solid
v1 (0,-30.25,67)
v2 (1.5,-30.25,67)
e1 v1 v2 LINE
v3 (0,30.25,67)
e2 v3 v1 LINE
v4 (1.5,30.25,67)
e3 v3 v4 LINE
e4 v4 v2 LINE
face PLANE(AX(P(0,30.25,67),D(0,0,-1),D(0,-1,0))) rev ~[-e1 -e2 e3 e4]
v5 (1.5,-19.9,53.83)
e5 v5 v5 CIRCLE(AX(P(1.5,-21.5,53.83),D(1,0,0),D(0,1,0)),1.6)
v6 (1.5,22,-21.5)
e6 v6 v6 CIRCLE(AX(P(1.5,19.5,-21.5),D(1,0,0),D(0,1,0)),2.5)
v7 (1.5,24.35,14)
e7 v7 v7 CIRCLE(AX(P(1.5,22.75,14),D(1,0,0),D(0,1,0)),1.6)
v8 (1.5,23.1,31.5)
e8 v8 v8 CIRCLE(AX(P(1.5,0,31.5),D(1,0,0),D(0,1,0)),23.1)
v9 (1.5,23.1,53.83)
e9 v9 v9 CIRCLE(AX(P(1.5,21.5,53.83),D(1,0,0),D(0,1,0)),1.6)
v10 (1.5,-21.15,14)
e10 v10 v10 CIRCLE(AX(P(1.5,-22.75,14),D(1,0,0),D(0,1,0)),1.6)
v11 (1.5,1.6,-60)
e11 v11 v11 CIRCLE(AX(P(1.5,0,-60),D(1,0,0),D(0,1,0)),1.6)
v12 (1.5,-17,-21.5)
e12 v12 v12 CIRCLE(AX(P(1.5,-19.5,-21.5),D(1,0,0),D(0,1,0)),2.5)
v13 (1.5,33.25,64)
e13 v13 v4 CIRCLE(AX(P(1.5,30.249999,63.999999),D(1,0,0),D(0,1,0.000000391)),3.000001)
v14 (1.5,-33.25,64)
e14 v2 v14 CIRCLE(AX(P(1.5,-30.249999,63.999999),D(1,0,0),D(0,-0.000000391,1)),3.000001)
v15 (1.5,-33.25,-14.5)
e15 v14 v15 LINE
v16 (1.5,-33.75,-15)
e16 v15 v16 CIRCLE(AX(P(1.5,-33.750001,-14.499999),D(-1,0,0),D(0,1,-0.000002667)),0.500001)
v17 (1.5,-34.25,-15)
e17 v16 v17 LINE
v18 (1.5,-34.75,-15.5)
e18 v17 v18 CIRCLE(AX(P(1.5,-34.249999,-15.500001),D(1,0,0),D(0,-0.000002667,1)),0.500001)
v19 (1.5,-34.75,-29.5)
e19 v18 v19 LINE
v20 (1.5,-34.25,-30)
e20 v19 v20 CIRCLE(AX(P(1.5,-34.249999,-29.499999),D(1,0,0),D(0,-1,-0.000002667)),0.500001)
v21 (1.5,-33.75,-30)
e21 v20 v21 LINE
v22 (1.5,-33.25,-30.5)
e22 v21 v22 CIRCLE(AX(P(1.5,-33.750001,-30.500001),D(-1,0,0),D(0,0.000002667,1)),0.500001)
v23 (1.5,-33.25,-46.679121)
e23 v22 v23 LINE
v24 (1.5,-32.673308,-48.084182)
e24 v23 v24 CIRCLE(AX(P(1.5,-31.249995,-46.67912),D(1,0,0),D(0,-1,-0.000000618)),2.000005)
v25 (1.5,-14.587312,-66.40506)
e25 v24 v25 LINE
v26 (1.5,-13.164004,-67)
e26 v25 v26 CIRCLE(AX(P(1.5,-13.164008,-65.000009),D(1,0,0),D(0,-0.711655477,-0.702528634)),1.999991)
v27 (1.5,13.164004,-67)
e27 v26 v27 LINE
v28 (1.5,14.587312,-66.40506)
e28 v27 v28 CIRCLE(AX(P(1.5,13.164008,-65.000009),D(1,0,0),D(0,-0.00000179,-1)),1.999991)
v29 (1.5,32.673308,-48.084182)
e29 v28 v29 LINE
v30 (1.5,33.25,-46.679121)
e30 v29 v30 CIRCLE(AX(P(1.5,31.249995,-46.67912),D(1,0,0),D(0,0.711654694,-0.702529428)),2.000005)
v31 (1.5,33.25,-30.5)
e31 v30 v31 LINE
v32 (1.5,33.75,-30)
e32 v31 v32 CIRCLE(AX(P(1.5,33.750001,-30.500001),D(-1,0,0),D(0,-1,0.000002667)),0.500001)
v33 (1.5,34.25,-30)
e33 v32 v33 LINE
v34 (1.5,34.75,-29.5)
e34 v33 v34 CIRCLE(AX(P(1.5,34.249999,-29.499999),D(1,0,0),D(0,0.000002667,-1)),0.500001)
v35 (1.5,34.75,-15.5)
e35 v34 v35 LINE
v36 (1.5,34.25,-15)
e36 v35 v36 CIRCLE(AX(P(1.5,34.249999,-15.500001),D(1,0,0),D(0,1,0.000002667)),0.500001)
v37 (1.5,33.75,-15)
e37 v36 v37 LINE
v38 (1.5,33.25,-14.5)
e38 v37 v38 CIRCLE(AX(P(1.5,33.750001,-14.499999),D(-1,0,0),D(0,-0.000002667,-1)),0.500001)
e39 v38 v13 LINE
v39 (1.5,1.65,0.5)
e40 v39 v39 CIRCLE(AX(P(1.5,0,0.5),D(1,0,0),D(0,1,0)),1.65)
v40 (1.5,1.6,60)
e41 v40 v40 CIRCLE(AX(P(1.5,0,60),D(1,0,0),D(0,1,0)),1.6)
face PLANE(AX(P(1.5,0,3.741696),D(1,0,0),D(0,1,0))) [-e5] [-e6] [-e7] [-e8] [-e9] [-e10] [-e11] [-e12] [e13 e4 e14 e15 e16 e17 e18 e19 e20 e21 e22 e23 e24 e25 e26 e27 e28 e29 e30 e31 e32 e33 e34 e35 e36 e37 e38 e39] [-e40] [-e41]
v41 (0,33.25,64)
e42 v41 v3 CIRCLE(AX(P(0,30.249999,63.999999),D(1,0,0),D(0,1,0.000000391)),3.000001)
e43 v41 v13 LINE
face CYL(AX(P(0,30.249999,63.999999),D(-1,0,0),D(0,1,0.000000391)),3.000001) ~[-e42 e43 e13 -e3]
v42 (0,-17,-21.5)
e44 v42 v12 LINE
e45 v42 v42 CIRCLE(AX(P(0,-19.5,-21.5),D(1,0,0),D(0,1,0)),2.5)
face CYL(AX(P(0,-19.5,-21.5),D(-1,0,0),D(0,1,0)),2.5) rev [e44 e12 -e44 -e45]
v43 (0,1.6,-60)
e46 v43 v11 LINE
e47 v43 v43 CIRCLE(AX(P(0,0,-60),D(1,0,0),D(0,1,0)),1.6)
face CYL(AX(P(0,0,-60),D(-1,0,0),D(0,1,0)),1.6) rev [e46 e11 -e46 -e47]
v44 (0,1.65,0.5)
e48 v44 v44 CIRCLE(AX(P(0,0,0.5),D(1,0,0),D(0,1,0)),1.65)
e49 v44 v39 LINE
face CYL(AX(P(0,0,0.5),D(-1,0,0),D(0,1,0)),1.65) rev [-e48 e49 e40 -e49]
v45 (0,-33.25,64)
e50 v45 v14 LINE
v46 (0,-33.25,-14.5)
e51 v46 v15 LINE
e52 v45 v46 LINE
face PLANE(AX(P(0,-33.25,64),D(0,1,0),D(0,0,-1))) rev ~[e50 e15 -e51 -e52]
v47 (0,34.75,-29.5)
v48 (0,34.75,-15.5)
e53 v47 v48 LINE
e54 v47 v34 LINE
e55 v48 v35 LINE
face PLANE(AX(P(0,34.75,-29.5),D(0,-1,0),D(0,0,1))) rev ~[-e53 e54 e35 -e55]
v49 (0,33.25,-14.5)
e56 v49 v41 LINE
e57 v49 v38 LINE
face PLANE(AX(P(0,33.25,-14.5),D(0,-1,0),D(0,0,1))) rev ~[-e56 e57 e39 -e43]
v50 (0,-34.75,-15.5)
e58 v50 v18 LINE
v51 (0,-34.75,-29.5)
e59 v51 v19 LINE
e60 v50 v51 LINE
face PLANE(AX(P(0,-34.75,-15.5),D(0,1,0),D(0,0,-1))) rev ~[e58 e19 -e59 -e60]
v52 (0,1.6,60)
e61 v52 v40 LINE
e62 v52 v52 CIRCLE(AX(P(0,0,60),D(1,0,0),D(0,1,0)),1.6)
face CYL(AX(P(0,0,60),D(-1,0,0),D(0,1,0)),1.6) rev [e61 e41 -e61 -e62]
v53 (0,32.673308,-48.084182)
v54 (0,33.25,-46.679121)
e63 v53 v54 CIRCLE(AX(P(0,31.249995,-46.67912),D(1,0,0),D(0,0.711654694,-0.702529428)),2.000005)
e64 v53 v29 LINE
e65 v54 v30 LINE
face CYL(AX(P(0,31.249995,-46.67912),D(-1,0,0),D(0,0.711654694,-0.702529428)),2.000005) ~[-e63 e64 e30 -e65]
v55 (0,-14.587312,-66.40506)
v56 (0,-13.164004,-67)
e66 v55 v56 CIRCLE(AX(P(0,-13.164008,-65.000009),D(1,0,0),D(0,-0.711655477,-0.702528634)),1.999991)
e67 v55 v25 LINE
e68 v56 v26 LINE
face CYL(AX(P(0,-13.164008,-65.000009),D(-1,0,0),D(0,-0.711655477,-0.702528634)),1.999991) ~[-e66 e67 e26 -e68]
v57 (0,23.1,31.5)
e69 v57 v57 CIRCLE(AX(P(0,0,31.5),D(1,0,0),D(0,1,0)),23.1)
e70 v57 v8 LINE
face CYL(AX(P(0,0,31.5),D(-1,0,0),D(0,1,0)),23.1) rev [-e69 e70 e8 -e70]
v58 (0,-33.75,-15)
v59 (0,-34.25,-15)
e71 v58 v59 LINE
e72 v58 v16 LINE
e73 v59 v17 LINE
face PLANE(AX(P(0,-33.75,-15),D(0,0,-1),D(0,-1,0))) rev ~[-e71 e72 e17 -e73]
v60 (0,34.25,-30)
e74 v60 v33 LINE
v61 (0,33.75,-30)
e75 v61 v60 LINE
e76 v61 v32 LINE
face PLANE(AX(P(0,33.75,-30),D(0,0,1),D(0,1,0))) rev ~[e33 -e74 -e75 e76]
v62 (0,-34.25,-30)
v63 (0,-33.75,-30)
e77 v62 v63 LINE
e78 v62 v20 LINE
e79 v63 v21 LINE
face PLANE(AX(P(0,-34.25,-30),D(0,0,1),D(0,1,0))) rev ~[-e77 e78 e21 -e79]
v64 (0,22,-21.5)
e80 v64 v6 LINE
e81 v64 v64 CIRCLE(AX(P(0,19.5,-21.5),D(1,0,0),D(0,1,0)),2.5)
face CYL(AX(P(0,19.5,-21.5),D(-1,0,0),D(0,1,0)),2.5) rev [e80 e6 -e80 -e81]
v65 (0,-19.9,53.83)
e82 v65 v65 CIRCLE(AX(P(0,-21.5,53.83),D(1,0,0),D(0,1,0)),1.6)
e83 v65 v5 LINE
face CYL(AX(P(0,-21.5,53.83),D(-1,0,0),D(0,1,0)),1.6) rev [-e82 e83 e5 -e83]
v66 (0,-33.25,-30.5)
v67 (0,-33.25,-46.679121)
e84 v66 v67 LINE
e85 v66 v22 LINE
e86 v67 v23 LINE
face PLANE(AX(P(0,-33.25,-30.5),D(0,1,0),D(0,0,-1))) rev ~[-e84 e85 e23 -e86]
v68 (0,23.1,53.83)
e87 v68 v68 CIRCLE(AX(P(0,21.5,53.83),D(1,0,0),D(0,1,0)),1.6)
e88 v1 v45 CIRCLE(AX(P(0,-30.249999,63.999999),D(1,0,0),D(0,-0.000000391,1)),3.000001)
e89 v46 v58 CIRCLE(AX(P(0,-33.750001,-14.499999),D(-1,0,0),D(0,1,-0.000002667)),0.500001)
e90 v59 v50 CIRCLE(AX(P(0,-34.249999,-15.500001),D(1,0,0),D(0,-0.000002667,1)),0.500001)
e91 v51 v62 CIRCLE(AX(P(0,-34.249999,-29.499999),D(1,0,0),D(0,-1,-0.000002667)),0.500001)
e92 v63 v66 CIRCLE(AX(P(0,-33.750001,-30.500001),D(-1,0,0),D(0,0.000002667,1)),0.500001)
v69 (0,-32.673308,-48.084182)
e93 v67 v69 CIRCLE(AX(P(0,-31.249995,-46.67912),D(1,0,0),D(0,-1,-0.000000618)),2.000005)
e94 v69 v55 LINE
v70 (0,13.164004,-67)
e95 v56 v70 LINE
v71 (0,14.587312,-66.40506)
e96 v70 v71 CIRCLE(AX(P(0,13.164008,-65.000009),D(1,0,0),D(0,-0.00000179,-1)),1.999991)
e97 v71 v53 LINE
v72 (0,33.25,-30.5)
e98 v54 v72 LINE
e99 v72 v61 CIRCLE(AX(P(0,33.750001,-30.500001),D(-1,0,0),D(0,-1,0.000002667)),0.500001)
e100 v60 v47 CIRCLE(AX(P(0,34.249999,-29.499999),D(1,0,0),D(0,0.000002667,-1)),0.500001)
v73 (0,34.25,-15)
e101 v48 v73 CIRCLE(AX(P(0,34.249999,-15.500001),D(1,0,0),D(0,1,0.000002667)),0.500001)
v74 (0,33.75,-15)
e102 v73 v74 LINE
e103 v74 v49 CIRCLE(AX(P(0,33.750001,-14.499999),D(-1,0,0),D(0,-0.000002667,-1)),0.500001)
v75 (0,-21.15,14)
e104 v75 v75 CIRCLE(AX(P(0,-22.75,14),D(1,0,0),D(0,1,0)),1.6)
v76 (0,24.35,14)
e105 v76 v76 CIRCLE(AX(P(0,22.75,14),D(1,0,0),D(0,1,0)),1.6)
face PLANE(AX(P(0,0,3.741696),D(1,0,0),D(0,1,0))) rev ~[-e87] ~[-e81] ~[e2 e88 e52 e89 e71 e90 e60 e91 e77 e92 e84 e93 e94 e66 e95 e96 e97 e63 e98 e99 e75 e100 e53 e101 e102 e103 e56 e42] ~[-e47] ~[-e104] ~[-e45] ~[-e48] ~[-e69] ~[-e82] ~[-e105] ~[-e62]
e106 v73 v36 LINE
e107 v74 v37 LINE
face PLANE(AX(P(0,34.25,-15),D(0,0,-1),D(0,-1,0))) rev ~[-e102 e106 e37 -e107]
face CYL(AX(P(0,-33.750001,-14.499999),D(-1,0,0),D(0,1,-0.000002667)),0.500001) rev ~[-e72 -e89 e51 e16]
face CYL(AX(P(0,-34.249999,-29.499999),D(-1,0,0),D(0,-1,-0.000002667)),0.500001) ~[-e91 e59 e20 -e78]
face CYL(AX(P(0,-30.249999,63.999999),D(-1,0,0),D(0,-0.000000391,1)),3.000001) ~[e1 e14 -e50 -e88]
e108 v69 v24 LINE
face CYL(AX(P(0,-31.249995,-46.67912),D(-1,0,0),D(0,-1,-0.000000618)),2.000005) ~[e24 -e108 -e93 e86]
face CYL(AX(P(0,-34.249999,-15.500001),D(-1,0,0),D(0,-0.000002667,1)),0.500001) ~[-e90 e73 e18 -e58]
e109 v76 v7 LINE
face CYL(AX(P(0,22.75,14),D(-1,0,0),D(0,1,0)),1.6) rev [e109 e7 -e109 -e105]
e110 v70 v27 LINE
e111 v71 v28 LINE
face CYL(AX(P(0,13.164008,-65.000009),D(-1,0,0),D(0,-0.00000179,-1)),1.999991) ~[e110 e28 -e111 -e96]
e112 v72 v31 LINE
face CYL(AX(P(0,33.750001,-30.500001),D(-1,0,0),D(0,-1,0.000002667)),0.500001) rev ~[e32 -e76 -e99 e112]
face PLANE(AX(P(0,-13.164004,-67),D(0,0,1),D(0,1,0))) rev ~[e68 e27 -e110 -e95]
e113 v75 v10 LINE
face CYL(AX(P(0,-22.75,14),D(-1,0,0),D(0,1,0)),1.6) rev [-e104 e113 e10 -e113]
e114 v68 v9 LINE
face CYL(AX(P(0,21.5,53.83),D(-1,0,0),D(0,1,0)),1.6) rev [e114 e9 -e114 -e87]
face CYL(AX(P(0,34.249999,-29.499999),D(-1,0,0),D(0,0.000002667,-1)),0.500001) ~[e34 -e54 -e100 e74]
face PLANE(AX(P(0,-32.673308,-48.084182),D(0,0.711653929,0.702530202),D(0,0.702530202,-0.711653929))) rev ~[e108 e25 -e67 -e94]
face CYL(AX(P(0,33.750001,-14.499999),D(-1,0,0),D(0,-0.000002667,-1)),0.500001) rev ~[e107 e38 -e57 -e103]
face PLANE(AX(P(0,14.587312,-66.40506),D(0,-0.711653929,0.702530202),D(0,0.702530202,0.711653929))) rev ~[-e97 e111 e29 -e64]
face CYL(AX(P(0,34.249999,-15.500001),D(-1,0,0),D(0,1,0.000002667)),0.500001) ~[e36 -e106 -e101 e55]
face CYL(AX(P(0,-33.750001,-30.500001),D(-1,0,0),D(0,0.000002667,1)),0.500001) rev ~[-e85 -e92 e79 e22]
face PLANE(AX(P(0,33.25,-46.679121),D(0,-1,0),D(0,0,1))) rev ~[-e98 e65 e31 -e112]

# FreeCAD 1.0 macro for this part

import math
import FreeCAD as App
import Part
import Sketcher
Q = App.Units.Quantity

doc = App.newDocument("Part")
body = doc.addObject("PartDesign::Body", "Body")

# Sketch on YZ plane
sketch1 = doc.addObject("Sketcher::SketchObject", "Sketch")
body.addObject(sketch1)
sketch1.AttachmentSupport = (doc.YZ_Plane, [""])
sketch1.MapMode = "FlatFace"
sketch1.addGeometry([
    Part.ArcOfCircle(Part.Circle(App.Vector(30.2, 64, 0), App.Vector(0, 0, 1), 3), math.radians(0), math.radians(90)),  # 0
    Part.LineSegment(App.Vector(30.2, 67, 0), App.Vector(-30.2, 67, 0)),  # 1
    Part.ArcOfCircle(Part.Circle(App.Vector(-30.2, 64, 0), App.Vector(0, 0, 1), 3), math.radians(90), math.radians(180)),  # 2
    Part.LineSegment(App.Vector(-33.2, 64, 0), App.Vector(-33.2, -14.5, 0)),  # 3
    Part.ArcOfCircle(Part.Circle(App.Vector(-33.8, -14.5, 0), App.Vector(0, 0, 1), 0.5), math.radians(-90), math.radians(0)),  # 4
    Part.LineSegment(App.Vector(-33.8, -15, 0), App.Vector(-34.2, -15, 0)),  # 5
    Part.ArcOfCircle(Part.Circle(App.Vector(-34.2, -15.5, 0), App.Vector(0, 0, 1), 0.5), math.radians(90), math.radians(180)),  # 6
    Part.LineSegment(App.Vector(-34.8, -15.5, 0), App.Vector(-34.8, -29.5, 0)),  # 7
    Part.ArcOfCircle(Part.Circle(App.Vector(-34.2, -29.5, 0), App.Vector(0, 0, 1), 0.5), math.radians(-180), math.radians(-90)),  # 8
    Part.LineSegment(App.Vector(-34.2, -30, 0), App.Vector(-33.8, -30, 0)),  # 9
    Part.ArcOfCircle(Part.Circle(App.Vector(-33.8, -30.5, 0), App.Vector(0, 0, 1), 0.5), math.radians(0), math.radians(90)),  # 10
    Part.LineSegment(App.Vector(-33.2, -30.5, 0), App.Vector(-33.2, -46.7, 0)),  # 11
    Part.ArcOfCircle(Part.Circle(App.Vector(-31.2, -46.7, 0), App.Vector(0, 0, 1), 2), math.radians(-180), math.radians(-135)),  # 12
    Part.LineSegment(App.Vector(-32.7, -48.1, 0), App.Vector(-14.6, -66.4, 0)),  # 13
    Part.ArcOfCircle(Part.Circle(App.Vector(-13.2, -65, 0), App.Vector(0, 0, 1), 2), math.radians(-135), math.radians(-90)),  # 14
    Part.LineSegment(App.Vector(-13.2, -67, 0), App.Vector(13.2, -67, 0)),  # 15
    Part.ArcOfCircle(Part.Circle(App.Vector(13.2, -65, 0), App.Vector(0, 0, 1), 2), math.radians(-90), math.radians(-45)),  # 16
    Part.LineSegment(App.Vector(14.6, -66.4, 0), App.Vector(32.7, -48.1, 0)),  # 17
    Part.ArcOfCircle(Part.Circle(App.Vector(31.2, -46.7, 0), App.Vector(0, 0, 1), 2), math.radians(-45), math.radians(0)),  # 18
    Part.LineSegment(App.Vector(33.2, -46.7, 0), App.Vector(33.2, -30.5, 0)),  # 19
    Part.ArcOfCircle(Part.Circle(App.Vector(33.8, -30.5, 0), App.Vector(0, 0, 1), 0.5), math.radians(90), math.radians(180)),  # 20
    Part.LineSegment(App.Vector(33.8, -30, 0), App.Vector(34.2, -30, 0)),  # 21
    Part.ArcOfCircle(Part.Circle(App.Vector(34.2, -29.5, 0), App.Vector(0, 0, 1), 0.5), math.radians(-90), math.radians(0)),  # 22
    Part.LineSegment(App.Vector(34.8, -29.5, 0), App.Vector(34.8, -15.5, 0)),  # 23
    Part.ArcOfCircle(Part.Circle(App.Vector(34.2, -15.5, 0), App.Vector(0, 0, 1), 0.5), math.radians(0), math.radians(90)),  # 24
    Part.LineSegment(App.Vector(34.2, -15, 0), App.Vector(33.8, -15, 0)),  # 25
    Part.ArcOfCircle(Part.Circle(App.Vector(33.8, -14.5, 0), App.Vector(0, 0, 1), 0.5), math.radians(-180), math.radians(-90)),  # 26
    Part.LineSegment(App.Vector(33.2, -14.5, 0), App.Vector(33.2, 64, 0)),  # 27
    Part.Circle(App.Vector(-19.5, -21.5, 0), App.Vector(0, 0, 1), 2.5),  # 28
    Part.Circle(App.Vector(0, -60, 0), App.Vector(0, 0, 1), 1.6),  # 29
    Part.Circle(App.Vector(19.5, -21.5, 0), App.Vector(0, 0, 1), 2.5),  # 30
    Part.Circle(App.Vector(-22.8, 14, 0), App.Vector(0, 0, 1), 1.6),  # 31
    Part.Circle(App.Vector(-21.5, 53.8, 0), App.Vector(0, 0, 1), 1.6),  # 32
    Part.Circle(App.Vector(0, 0.5, 0), App.Vector(0, 0, 1), 1.6),  # 33
    Part.Circle(App.Vector(22.8, 14, 0), App.Vector(0, 0, 1), 1.6),  # 34
    Part.Circle(App.Vector(0, 31.5, 0), App.Vector(0, 0, 1), 23.1),  # 35
    Part.Circle(App.Vector(0, 60, 0), App.Vector(0, 0, 1), 1.6),  # 36
    Part.Circle(App.Vector(21.5, 53.8, 0), App.Vector(0, 0, 1), 1.6),  # 37
], False)
sketch1.addConstraint([
    Sketcher.Constraint("Tangent", 0, 2, 1, 1),
    Sketcher.Constraint("Tangent", 1, 2, 2, 1),
    Sketcher.Constraint("Tangent", 2, 2, 3, 1),
    Sketcher.Constraint("Coincident", 3, 2, 4, 2),
    Sketcher.Constraint("Coincident", 4, 1, 5, 1),
    Sketcher.Constraint("Coincident", 5, 2, 6, 1),
    Sketcher.Constraint("Coincident", 6, 2, 7, 1),
    Sketcher.Constraint("Coincident", 7, 2, 8, 1),
    Sketcher.Constraint("Coincident", 8, 2, 9, 1),
    Sketcher.Constraint("Coincident", 9, 2, 10, 2),
    Sketcher.Constraint("Coincident", 10, 1, 11, 1),
    Sketcher.Constraint("Tangent", 11, 2, 12, 1),
    Sketcher.Constraint("Tangent", 12, 2, 13, 1),
    Sketcher.Constraint("Coincident", 13, 2, 14, 1),
    Sketcher.Constraint("Tangent", 14, 2, 15, 1),
    Sketcher.Constraint("Tangent", 15, 2, 16, 1),
    Sketcher.Constraint("Coincident", 16, 2, 17, 1),
    Sketcher.Constraint("Tangent", 17, 2, 18, 1),
    Sketcher.Constraint("Tangent", 18, 2, 19, 1),
    Sketcher.Constraint("Coincident", 19, 2, 20, 2),
    Sketcher.Constraint("Coincident", 20, 1, 21, 1),
    Sketcher.Constraint("Coincident", 21, 2, 22, 1),
    Sketcher.Constraint("Coincident", 22, 2, 23, 1),
    Sketcher.Constraint("Coincident", 23, 2, 24, 1),
    Sketcher.Constraint("Coincident", 24, 2, 25, 1),
    Sketcher.Constraint("Coincident", 25, 2, 26, 2),
    Sketcher.Constraint("Coincident", 26, 1, 27, 1),
    Sketcher.Constraint("Tangent", 27, 2, 0, 1),
    Sketcher.Constraint("Horizontal", 1),
    Sketcher.Constraint("Vertical", 3),
    Sketcher.Constraint("Horizontal", 5),
    Sketcher.Constraint("Vertical", 7),
    Sketcher.Constraint("Horizontal", 9),
    Sketcher.Constraint("Vertical", 11),
    Sketcher.Constraint("Horizontal", 15),
    Sketcher.Constraint("Vertical", 19),
    Sketcher.Constraint("Horizontal", 21),
    Sketcher.Constraint("Vertical", 23),
    Sketcher.Constraint("Horizontal", 25),
    Sketcher.Constraint("Vertical", 27),
    Sketcher.Constraint("Equal", 0, 2),
    Sketcher.Constraint("Equal", 4, 6),
    Sketcher.Constraint("Equal", 6, 8),
    Sketcher.Constraint("Equal", 8, 10),
    Sketcher.Constraint("Equal", 14, 16),
    Sketcher.Constraint("Equal", 12, 18),
    Sketcher.Constraint("Equal", 10, 20),
    Sketcher.Constraint("Equal", 20, 22),
    Sketcher.Constraint("Equal", 22, 24),
    Sketcher.Constraint("Equal", 24, 26),
    Sketcher.Constraint("Equal", 28, 30),
    Sketcher.Constraint("Equal", 29, 31),
    Sketcher.Constraint("Equal", 31, 32),
    Sketcher.Constraint("Equal", 32, 34),
    Sketcher.Constraint("Equal", 34, 36),
    Sketcher.Constraint("Equal", 36, 37),
    Sketcher.Constraint("Symmetric", 29, 3, 36, 3, -1, 1),
    Sketcher.Constraint("Symmetric", 12, 3, 18, 3, -2),
    Sketcher.Constraint("Symmetric", 8, 3, 22, 3, -2),
    Sketcher.Constraint("Symmetric", 4, 3, 26, 3, -2),
    Sketcher.Constraint("Symmetric", 28, 3, 30, 3, -2),
    Sketcher.Constraint("Symmetric", 31, 3, 34, 3, -2),
    Sketcher.Constraint("Symmetric", 32, 3, 37, 3, -2),
    Sketcher.Constraint("Symmetric", 13, 2, 16, 2, -2),
    Sketcher.Constraint("PointOnObject", 29, 3, -2),
    Sketcher.Constraint("PointOnObject", 33, 3, -2),
    Sketcher.Constraint("PointOnObject", 35, 3, -2),
    Sketcher.Constraint("Horizontal", 26, 3, 3, 2),
    Sketcher.Constraint("Horizontal", 24, 3, 6, 2),
    Sketcher.Constraint("Horizontal", 22, 3, 7, 2),
    Sketcher.Constraint("Horizontal", 20, 3, 10, 1),
    Sketcher.Constraint("Horizontal", 10, 1, 19, 2),
    Sketcher.Constraint("Horizontal", 7, 2, 22, 2),
    Sketcher.Constraint("Horizontal", 6, 2, 23, 2),
    Sketcher.Constraint("Horizontal", 3, 2, 26, 1),
    Sketcher.Constraint("Vertical", 4, 3, 10, 3),
    Sketcher.Constraint("Vertical", 10, 3, 4, 1),
    Sketcher.Constraint("Vertical", 8, 3, 5, 2),
    Sketcher.Constraint("Vertical", 5, 2, 8, 2),
    Sketcher.Constraint("Vertical", 4, 1, 9, 2),
    Sketcher.Constraint("Vertical", 26, 3, 20, 1),
    Sketcher.Constraint("Vertical", 24, 3, 21, 2),
    Sketcher.Constraint("Vertical", 21, 2, 24, 2),
    Sketcher.Constraint("Vertical", 20, 1, 25, 2),
    Sketcher.Constraint("Diameter", 28, Q("5 mm")),
    Sketcher.Constraint("Radius", 0, Q("3.000001 mm")),
    Sketcher.Constraint("Diameter", 29, Q("3.2 mm")),
    Sketcher.Constraint("Diameter", 33, Q("3.3 mm")),
    Sketcher.Constraint("Diameter", 35, Q("46.2 mm")),
    Sketcher.Constraint("Radius", 4, Q("0.500001 mm")),
    Sketcher.Constraint("DistanceY", 7, 2, 7, 1, Q("14 mm")),
    Sketcher.Constraint("DistanceX", 1, 2, 1, 1, Q("60.5 mm")),
    Sketcher.Constraint("DistanceX", 5, 2, 5, 1, Q("0.5 mm")),
    Sketcher.Constraint("DistanceY", 3, 2, 3, 1, Q("78.5 mm")),
    Sketcher.Constraint("DistanceY", -1, 1, 0, 3, Q("63.999999 mm")),
    Sketcher.Constraint("DistanceY", 29, 3, -1, 1, Q("60 mm")),
    Sketcher.Constraint("DistanceY", -1, 1, 31, 3, Q("14 mm")),
    Sketcher.Constraint("DistanceY", 14, 2, -1, 1, Q("67 mm")),
    Sketcher.Constraint("DistanceY", 28, 3, 4, 3, Q("7.000001 mm")),
    Sketcher.Constraint("DistanceX", 4, 3, 31, 3, Q("11.000001 mm")),
    Sketcher.Constraint("DistanceY", 28, 3, 33, 3, Q("22 mm")),
    Sketcher.Constraint("DistanceY", 33, 3, 35, 3, Q("31 mm")),
    Sketcher.Constraint("DistanceX", 32, 3, 37, 3, Q("43 mm")),
    Sketcher.Constraint("DistanceX", 28, 3, -1, 1, Q("19.5 mm")),
    Sketcher.Constraint("DistanceY", -1, 1, 32, 3, Q("53.83 mm")),
    Sketcher.Constraint("Radius", 14, Q("1.999991 mm")),
    Sketcher.Constraint("Radius", 12, Q("2.000005 mm")),
    Sketcher.Constraint("DistanceX", 15, 1, 15, 2, Q("26.328008 mm")),
    Sketcher.Constraint("DistanceY", 11, 2, 11, 1, Q("16.179121 mm")),
    Sketcher.Constraint("DistanceY", 13, 2, -1, 1, Q("66.40506 mm")),
])
pad1 = doc.addObject("PartDesign::Pad", "Pad")
body.addObject(pad1)
pad1.Profile = sketch1
pad1.Length = 1.5

doc.recompute()
